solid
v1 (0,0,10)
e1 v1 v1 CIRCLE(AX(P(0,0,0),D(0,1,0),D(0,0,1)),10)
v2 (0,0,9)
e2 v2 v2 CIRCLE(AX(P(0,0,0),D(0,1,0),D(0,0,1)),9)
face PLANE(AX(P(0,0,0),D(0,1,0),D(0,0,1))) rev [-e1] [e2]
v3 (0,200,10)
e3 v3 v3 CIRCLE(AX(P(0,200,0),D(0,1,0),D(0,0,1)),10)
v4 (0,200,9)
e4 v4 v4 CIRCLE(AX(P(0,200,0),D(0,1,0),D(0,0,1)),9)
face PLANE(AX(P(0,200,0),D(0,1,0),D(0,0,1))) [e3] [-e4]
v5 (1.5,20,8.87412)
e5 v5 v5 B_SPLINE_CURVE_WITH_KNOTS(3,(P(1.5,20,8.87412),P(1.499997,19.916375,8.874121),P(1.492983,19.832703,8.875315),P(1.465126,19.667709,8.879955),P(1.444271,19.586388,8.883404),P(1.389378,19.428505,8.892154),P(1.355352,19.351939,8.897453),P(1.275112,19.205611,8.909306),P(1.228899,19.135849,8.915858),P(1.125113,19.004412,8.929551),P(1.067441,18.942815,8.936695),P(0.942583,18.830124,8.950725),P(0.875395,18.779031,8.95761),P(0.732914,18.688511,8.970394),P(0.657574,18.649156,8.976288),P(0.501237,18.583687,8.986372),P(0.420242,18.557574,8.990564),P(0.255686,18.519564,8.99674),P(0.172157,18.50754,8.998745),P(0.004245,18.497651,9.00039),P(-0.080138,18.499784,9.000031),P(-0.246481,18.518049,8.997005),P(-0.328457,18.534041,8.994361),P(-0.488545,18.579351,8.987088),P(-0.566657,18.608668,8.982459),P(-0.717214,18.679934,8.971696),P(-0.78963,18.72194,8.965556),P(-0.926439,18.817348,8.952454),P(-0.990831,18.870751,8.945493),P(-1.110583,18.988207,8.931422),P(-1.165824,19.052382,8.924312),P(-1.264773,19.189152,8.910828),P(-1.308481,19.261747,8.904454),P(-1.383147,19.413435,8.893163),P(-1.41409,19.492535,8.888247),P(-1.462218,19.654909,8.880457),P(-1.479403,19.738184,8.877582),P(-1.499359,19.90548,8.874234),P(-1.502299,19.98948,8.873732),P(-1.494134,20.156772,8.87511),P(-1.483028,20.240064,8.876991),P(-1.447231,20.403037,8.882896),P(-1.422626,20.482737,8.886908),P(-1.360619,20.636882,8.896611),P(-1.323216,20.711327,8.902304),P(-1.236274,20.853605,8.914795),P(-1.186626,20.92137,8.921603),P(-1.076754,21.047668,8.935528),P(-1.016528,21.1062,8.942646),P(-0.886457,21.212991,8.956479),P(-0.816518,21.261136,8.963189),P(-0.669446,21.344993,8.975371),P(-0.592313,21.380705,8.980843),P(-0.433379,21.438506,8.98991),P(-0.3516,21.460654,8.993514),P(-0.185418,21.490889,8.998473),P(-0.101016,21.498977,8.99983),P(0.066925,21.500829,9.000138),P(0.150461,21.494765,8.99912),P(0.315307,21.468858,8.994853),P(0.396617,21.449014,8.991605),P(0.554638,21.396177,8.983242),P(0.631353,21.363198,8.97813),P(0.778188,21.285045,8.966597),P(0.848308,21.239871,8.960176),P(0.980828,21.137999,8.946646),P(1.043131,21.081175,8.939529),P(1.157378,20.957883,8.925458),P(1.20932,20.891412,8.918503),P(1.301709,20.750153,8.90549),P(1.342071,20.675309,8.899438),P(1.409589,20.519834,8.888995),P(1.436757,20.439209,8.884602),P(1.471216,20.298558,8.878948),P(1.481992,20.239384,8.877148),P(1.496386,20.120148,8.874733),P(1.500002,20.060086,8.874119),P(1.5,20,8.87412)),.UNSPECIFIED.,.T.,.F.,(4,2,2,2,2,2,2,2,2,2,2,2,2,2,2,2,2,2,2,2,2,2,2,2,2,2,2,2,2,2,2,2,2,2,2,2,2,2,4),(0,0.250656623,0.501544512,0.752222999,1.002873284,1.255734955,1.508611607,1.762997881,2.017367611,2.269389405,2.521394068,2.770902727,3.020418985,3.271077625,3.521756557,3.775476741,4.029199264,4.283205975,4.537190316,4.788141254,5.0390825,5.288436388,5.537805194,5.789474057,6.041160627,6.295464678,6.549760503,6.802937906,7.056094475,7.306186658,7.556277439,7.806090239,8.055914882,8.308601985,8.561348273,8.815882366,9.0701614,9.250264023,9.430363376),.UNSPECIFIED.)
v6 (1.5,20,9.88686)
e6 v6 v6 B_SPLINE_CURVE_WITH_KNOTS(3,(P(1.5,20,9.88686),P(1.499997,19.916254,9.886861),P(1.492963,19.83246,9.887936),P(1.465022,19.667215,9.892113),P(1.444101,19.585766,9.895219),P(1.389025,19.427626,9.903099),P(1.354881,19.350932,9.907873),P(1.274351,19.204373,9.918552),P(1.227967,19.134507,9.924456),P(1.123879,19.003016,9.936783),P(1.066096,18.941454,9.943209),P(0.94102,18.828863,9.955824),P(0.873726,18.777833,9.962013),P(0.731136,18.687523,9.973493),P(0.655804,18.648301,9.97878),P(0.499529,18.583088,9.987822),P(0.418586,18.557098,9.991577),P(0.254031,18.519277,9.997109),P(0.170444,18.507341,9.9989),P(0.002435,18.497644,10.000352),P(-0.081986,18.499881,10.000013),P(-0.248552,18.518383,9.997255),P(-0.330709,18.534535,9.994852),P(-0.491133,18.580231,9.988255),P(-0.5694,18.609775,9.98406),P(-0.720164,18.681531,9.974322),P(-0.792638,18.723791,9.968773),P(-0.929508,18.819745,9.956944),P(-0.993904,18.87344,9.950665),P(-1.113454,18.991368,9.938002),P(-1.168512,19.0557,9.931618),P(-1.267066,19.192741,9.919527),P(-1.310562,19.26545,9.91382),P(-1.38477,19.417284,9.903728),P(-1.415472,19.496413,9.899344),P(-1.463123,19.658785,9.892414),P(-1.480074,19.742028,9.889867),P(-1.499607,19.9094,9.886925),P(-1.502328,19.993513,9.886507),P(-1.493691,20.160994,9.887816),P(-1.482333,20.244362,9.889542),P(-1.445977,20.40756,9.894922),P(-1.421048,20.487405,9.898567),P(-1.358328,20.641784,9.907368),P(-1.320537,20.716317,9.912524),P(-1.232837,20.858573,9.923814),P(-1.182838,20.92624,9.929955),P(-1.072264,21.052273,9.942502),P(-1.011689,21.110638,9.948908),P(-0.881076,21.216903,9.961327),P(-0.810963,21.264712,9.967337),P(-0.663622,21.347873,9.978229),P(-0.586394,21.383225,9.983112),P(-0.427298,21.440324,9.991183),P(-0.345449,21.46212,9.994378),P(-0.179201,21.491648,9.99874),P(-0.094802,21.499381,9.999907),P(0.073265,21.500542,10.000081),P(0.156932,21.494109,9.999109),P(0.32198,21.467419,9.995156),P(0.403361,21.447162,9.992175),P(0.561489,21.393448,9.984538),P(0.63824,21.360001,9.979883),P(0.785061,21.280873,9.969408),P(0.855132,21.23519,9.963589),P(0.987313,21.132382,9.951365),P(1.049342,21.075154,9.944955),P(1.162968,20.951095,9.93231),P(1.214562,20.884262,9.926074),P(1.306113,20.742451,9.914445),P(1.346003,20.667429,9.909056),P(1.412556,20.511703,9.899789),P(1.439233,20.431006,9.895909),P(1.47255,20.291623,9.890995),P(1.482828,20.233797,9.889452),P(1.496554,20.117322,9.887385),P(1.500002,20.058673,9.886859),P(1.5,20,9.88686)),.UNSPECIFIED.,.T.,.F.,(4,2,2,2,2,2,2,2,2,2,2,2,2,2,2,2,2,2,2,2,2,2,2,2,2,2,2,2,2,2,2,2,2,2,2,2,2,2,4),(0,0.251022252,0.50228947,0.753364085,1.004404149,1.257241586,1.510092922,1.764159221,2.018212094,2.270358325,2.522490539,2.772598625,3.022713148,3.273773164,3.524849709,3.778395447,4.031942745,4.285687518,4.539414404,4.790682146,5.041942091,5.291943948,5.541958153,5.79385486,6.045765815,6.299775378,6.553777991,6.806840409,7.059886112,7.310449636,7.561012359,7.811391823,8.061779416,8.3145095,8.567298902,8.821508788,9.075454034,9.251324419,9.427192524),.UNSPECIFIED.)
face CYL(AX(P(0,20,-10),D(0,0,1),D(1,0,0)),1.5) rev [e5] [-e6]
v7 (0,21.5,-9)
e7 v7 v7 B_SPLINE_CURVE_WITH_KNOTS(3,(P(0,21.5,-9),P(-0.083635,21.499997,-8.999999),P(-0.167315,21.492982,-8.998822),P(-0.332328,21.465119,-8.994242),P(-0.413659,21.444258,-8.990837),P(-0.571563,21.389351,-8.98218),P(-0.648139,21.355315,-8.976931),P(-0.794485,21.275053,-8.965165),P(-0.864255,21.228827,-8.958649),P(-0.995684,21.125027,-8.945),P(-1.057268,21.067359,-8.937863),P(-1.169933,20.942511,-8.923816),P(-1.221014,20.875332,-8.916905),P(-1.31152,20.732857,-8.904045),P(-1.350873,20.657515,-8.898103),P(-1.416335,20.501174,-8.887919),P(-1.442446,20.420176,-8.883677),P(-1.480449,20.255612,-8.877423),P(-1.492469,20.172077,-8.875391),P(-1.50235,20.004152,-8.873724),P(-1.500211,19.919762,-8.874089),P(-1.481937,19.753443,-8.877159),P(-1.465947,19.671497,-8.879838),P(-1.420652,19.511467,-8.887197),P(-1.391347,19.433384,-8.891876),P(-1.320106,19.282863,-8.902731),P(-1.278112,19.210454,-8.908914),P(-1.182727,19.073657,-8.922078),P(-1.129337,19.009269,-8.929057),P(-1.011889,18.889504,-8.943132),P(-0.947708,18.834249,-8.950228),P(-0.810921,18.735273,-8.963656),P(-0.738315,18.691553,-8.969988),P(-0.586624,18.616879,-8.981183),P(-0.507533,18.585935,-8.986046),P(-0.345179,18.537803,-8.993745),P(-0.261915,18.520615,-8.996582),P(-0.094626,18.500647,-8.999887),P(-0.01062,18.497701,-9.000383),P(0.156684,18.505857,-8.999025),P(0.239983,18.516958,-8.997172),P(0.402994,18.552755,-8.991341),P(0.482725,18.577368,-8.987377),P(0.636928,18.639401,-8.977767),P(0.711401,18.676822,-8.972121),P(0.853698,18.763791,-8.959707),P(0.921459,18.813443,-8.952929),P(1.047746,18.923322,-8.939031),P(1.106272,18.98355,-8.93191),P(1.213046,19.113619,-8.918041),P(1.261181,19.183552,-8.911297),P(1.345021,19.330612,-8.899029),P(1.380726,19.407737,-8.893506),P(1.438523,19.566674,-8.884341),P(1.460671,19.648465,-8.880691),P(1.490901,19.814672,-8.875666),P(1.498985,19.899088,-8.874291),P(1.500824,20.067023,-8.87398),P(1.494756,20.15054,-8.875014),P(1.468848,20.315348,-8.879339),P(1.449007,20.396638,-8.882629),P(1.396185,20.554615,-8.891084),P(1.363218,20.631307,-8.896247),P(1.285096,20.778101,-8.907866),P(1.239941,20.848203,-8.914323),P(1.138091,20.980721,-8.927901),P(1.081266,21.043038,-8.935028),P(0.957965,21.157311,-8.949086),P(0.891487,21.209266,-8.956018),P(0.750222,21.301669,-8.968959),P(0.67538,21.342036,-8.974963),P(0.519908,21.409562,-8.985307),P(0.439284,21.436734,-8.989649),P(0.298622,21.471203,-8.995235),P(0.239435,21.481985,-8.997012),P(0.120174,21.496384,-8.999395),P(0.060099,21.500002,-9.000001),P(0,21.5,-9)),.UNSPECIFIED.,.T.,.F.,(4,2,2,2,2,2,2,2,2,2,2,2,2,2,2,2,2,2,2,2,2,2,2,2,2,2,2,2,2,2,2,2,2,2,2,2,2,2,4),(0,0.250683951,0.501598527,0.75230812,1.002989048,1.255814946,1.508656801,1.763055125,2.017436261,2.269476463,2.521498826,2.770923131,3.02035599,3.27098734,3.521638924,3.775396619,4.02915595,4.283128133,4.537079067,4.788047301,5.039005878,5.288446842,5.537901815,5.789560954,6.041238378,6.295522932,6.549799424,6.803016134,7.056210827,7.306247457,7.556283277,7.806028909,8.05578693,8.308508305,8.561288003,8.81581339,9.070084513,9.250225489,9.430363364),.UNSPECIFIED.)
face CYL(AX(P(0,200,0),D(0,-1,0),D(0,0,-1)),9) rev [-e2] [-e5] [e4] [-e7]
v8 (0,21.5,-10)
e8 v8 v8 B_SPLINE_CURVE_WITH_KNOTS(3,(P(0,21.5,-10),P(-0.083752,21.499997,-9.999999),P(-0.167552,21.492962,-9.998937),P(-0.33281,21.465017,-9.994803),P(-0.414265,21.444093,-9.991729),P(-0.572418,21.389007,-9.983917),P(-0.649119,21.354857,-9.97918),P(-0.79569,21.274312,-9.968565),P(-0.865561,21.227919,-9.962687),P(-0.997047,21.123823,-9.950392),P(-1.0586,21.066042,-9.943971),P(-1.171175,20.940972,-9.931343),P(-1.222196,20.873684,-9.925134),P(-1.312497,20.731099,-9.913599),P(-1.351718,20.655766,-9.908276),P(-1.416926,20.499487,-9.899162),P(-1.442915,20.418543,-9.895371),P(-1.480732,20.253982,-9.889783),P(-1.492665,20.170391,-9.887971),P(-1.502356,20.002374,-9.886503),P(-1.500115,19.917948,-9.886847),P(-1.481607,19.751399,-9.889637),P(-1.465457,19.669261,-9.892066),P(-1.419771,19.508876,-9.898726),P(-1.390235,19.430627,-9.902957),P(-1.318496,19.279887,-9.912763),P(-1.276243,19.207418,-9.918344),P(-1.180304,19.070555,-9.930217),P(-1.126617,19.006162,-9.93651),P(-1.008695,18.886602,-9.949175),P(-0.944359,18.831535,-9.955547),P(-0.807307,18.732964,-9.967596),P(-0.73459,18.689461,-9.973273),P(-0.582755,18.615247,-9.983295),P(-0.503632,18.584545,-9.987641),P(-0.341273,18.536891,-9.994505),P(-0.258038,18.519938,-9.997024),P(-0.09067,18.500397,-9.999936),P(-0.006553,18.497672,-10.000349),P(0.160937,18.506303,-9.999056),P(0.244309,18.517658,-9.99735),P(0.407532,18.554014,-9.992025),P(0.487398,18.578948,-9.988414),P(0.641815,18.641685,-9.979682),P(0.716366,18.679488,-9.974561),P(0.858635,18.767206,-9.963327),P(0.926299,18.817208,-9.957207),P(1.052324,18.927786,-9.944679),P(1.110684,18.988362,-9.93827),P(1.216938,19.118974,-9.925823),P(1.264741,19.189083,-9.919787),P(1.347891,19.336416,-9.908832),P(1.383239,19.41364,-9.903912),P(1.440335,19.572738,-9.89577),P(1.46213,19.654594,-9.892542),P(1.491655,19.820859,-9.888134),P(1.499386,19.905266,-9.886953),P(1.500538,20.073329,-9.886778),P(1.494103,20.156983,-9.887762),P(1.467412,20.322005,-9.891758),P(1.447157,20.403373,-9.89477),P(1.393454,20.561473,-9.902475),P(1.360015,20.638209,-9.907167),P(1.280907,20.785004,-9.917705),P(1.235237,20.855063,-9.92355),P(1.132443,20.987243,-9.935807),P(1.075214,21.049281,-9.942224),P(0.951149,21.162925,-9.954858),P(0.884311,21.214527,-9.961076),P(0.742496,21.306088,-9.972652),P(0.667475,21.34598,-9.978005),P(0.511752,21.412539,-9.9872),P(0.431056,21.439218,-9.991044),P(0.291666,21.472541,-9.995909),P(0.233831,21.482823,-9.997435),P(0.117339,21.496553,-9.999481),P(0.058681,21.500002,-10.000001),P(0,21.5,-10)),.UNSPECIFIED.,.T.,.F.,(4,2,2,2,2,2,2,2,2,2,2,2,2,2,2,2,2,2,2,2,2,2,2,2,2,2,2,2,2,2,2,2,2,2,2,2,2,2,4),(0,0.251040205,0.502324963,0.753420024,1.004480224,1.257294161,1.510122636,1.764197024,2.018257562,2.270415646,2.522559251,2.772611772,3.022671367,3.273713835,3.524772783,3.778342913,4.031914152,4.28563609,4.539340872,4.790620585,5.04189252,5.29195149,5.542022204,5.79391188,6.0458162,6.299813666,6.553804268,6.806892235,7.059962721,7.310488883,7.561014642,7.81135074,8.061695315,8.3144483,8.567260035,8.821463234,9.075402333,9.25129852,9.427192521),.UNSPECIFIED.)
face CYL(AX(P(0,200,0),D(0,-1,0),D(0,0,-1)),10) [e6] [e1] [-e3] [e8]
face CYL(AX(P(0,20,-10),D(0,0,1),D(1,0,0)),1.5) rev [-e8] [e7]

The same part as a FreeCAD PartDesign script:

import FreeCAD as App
import Part
import Sketcher
Q = App.Units.Quantity

doc = App.newDocument("Part")
body = doc.addObject("PartDesign::Body", "Body")

# Sketch on XZ plane
sketch1 = doc.addObject("Sketcher::SketchObject", "Sketch")
body.addObject(sketch1)
sketch1.AttachmentSupport = (doc.XZ_Plane, [""])
sketch1.MapMode = "FlatFace"
sketch1.addGeometry([
    Part.Circle(App.Vector(0, 0, 0), App.Vector(0, 0, 1), 10),
    Part.Circle(App.Vector(0, 0, 0), App.Vector(0, 0, 1), 9),
], False)
sketch1.addConstraint([
    Sketcher.Constraint("Coincident", 0, 3, -1, 1),
    Sketcher.Constraint("Coincident", 1, 3, -1, 1),
    Sketcher.Constraint("Diameter", 0, Q("20 mm")),
    Sketcher.Constraint("Diameter", 1, Q("18 mm")),
])
pad1 = doc.addObject("PartDesign::Pad", "Pad")
body.addObject(pad1)
pad1.Profile = sketch1
pad1.Length = 200
pad1.Reversed = True

# Sketch on XY plane
sketch2 = doc.addObject("Sketcher::SketchObject", "Sketch001")
body.addObject(sketch2)
sketch2.AttachmentSupport = (doc.XY_Plane, [""])
sketch2.MapMode = "FlatFace"
sketch2.addGeometry(Part.Circle(App.Vector(0, 20, 0), App.Vector(0, 0, 1), 1.5), False)
sketch2.addConstraint([
    Sketcher.Constraint("PointOnObject", 0, 3, -2),
    Sketcher.Constraint("Diameter", 0, Q("3 mm")),
    Sketcher.Constraint("DistanceY", -1, 1, 0, 3, Q("20 mm")),
])
pocket1 = doc.addObject("PartDesign::Pocket", "Pocket")
body.addObject(pocket1)
pocket1.Profile = sketch2
pocket1.Type = "ThroughAll"
pocket1.Midplane = True

doc.recompute()
